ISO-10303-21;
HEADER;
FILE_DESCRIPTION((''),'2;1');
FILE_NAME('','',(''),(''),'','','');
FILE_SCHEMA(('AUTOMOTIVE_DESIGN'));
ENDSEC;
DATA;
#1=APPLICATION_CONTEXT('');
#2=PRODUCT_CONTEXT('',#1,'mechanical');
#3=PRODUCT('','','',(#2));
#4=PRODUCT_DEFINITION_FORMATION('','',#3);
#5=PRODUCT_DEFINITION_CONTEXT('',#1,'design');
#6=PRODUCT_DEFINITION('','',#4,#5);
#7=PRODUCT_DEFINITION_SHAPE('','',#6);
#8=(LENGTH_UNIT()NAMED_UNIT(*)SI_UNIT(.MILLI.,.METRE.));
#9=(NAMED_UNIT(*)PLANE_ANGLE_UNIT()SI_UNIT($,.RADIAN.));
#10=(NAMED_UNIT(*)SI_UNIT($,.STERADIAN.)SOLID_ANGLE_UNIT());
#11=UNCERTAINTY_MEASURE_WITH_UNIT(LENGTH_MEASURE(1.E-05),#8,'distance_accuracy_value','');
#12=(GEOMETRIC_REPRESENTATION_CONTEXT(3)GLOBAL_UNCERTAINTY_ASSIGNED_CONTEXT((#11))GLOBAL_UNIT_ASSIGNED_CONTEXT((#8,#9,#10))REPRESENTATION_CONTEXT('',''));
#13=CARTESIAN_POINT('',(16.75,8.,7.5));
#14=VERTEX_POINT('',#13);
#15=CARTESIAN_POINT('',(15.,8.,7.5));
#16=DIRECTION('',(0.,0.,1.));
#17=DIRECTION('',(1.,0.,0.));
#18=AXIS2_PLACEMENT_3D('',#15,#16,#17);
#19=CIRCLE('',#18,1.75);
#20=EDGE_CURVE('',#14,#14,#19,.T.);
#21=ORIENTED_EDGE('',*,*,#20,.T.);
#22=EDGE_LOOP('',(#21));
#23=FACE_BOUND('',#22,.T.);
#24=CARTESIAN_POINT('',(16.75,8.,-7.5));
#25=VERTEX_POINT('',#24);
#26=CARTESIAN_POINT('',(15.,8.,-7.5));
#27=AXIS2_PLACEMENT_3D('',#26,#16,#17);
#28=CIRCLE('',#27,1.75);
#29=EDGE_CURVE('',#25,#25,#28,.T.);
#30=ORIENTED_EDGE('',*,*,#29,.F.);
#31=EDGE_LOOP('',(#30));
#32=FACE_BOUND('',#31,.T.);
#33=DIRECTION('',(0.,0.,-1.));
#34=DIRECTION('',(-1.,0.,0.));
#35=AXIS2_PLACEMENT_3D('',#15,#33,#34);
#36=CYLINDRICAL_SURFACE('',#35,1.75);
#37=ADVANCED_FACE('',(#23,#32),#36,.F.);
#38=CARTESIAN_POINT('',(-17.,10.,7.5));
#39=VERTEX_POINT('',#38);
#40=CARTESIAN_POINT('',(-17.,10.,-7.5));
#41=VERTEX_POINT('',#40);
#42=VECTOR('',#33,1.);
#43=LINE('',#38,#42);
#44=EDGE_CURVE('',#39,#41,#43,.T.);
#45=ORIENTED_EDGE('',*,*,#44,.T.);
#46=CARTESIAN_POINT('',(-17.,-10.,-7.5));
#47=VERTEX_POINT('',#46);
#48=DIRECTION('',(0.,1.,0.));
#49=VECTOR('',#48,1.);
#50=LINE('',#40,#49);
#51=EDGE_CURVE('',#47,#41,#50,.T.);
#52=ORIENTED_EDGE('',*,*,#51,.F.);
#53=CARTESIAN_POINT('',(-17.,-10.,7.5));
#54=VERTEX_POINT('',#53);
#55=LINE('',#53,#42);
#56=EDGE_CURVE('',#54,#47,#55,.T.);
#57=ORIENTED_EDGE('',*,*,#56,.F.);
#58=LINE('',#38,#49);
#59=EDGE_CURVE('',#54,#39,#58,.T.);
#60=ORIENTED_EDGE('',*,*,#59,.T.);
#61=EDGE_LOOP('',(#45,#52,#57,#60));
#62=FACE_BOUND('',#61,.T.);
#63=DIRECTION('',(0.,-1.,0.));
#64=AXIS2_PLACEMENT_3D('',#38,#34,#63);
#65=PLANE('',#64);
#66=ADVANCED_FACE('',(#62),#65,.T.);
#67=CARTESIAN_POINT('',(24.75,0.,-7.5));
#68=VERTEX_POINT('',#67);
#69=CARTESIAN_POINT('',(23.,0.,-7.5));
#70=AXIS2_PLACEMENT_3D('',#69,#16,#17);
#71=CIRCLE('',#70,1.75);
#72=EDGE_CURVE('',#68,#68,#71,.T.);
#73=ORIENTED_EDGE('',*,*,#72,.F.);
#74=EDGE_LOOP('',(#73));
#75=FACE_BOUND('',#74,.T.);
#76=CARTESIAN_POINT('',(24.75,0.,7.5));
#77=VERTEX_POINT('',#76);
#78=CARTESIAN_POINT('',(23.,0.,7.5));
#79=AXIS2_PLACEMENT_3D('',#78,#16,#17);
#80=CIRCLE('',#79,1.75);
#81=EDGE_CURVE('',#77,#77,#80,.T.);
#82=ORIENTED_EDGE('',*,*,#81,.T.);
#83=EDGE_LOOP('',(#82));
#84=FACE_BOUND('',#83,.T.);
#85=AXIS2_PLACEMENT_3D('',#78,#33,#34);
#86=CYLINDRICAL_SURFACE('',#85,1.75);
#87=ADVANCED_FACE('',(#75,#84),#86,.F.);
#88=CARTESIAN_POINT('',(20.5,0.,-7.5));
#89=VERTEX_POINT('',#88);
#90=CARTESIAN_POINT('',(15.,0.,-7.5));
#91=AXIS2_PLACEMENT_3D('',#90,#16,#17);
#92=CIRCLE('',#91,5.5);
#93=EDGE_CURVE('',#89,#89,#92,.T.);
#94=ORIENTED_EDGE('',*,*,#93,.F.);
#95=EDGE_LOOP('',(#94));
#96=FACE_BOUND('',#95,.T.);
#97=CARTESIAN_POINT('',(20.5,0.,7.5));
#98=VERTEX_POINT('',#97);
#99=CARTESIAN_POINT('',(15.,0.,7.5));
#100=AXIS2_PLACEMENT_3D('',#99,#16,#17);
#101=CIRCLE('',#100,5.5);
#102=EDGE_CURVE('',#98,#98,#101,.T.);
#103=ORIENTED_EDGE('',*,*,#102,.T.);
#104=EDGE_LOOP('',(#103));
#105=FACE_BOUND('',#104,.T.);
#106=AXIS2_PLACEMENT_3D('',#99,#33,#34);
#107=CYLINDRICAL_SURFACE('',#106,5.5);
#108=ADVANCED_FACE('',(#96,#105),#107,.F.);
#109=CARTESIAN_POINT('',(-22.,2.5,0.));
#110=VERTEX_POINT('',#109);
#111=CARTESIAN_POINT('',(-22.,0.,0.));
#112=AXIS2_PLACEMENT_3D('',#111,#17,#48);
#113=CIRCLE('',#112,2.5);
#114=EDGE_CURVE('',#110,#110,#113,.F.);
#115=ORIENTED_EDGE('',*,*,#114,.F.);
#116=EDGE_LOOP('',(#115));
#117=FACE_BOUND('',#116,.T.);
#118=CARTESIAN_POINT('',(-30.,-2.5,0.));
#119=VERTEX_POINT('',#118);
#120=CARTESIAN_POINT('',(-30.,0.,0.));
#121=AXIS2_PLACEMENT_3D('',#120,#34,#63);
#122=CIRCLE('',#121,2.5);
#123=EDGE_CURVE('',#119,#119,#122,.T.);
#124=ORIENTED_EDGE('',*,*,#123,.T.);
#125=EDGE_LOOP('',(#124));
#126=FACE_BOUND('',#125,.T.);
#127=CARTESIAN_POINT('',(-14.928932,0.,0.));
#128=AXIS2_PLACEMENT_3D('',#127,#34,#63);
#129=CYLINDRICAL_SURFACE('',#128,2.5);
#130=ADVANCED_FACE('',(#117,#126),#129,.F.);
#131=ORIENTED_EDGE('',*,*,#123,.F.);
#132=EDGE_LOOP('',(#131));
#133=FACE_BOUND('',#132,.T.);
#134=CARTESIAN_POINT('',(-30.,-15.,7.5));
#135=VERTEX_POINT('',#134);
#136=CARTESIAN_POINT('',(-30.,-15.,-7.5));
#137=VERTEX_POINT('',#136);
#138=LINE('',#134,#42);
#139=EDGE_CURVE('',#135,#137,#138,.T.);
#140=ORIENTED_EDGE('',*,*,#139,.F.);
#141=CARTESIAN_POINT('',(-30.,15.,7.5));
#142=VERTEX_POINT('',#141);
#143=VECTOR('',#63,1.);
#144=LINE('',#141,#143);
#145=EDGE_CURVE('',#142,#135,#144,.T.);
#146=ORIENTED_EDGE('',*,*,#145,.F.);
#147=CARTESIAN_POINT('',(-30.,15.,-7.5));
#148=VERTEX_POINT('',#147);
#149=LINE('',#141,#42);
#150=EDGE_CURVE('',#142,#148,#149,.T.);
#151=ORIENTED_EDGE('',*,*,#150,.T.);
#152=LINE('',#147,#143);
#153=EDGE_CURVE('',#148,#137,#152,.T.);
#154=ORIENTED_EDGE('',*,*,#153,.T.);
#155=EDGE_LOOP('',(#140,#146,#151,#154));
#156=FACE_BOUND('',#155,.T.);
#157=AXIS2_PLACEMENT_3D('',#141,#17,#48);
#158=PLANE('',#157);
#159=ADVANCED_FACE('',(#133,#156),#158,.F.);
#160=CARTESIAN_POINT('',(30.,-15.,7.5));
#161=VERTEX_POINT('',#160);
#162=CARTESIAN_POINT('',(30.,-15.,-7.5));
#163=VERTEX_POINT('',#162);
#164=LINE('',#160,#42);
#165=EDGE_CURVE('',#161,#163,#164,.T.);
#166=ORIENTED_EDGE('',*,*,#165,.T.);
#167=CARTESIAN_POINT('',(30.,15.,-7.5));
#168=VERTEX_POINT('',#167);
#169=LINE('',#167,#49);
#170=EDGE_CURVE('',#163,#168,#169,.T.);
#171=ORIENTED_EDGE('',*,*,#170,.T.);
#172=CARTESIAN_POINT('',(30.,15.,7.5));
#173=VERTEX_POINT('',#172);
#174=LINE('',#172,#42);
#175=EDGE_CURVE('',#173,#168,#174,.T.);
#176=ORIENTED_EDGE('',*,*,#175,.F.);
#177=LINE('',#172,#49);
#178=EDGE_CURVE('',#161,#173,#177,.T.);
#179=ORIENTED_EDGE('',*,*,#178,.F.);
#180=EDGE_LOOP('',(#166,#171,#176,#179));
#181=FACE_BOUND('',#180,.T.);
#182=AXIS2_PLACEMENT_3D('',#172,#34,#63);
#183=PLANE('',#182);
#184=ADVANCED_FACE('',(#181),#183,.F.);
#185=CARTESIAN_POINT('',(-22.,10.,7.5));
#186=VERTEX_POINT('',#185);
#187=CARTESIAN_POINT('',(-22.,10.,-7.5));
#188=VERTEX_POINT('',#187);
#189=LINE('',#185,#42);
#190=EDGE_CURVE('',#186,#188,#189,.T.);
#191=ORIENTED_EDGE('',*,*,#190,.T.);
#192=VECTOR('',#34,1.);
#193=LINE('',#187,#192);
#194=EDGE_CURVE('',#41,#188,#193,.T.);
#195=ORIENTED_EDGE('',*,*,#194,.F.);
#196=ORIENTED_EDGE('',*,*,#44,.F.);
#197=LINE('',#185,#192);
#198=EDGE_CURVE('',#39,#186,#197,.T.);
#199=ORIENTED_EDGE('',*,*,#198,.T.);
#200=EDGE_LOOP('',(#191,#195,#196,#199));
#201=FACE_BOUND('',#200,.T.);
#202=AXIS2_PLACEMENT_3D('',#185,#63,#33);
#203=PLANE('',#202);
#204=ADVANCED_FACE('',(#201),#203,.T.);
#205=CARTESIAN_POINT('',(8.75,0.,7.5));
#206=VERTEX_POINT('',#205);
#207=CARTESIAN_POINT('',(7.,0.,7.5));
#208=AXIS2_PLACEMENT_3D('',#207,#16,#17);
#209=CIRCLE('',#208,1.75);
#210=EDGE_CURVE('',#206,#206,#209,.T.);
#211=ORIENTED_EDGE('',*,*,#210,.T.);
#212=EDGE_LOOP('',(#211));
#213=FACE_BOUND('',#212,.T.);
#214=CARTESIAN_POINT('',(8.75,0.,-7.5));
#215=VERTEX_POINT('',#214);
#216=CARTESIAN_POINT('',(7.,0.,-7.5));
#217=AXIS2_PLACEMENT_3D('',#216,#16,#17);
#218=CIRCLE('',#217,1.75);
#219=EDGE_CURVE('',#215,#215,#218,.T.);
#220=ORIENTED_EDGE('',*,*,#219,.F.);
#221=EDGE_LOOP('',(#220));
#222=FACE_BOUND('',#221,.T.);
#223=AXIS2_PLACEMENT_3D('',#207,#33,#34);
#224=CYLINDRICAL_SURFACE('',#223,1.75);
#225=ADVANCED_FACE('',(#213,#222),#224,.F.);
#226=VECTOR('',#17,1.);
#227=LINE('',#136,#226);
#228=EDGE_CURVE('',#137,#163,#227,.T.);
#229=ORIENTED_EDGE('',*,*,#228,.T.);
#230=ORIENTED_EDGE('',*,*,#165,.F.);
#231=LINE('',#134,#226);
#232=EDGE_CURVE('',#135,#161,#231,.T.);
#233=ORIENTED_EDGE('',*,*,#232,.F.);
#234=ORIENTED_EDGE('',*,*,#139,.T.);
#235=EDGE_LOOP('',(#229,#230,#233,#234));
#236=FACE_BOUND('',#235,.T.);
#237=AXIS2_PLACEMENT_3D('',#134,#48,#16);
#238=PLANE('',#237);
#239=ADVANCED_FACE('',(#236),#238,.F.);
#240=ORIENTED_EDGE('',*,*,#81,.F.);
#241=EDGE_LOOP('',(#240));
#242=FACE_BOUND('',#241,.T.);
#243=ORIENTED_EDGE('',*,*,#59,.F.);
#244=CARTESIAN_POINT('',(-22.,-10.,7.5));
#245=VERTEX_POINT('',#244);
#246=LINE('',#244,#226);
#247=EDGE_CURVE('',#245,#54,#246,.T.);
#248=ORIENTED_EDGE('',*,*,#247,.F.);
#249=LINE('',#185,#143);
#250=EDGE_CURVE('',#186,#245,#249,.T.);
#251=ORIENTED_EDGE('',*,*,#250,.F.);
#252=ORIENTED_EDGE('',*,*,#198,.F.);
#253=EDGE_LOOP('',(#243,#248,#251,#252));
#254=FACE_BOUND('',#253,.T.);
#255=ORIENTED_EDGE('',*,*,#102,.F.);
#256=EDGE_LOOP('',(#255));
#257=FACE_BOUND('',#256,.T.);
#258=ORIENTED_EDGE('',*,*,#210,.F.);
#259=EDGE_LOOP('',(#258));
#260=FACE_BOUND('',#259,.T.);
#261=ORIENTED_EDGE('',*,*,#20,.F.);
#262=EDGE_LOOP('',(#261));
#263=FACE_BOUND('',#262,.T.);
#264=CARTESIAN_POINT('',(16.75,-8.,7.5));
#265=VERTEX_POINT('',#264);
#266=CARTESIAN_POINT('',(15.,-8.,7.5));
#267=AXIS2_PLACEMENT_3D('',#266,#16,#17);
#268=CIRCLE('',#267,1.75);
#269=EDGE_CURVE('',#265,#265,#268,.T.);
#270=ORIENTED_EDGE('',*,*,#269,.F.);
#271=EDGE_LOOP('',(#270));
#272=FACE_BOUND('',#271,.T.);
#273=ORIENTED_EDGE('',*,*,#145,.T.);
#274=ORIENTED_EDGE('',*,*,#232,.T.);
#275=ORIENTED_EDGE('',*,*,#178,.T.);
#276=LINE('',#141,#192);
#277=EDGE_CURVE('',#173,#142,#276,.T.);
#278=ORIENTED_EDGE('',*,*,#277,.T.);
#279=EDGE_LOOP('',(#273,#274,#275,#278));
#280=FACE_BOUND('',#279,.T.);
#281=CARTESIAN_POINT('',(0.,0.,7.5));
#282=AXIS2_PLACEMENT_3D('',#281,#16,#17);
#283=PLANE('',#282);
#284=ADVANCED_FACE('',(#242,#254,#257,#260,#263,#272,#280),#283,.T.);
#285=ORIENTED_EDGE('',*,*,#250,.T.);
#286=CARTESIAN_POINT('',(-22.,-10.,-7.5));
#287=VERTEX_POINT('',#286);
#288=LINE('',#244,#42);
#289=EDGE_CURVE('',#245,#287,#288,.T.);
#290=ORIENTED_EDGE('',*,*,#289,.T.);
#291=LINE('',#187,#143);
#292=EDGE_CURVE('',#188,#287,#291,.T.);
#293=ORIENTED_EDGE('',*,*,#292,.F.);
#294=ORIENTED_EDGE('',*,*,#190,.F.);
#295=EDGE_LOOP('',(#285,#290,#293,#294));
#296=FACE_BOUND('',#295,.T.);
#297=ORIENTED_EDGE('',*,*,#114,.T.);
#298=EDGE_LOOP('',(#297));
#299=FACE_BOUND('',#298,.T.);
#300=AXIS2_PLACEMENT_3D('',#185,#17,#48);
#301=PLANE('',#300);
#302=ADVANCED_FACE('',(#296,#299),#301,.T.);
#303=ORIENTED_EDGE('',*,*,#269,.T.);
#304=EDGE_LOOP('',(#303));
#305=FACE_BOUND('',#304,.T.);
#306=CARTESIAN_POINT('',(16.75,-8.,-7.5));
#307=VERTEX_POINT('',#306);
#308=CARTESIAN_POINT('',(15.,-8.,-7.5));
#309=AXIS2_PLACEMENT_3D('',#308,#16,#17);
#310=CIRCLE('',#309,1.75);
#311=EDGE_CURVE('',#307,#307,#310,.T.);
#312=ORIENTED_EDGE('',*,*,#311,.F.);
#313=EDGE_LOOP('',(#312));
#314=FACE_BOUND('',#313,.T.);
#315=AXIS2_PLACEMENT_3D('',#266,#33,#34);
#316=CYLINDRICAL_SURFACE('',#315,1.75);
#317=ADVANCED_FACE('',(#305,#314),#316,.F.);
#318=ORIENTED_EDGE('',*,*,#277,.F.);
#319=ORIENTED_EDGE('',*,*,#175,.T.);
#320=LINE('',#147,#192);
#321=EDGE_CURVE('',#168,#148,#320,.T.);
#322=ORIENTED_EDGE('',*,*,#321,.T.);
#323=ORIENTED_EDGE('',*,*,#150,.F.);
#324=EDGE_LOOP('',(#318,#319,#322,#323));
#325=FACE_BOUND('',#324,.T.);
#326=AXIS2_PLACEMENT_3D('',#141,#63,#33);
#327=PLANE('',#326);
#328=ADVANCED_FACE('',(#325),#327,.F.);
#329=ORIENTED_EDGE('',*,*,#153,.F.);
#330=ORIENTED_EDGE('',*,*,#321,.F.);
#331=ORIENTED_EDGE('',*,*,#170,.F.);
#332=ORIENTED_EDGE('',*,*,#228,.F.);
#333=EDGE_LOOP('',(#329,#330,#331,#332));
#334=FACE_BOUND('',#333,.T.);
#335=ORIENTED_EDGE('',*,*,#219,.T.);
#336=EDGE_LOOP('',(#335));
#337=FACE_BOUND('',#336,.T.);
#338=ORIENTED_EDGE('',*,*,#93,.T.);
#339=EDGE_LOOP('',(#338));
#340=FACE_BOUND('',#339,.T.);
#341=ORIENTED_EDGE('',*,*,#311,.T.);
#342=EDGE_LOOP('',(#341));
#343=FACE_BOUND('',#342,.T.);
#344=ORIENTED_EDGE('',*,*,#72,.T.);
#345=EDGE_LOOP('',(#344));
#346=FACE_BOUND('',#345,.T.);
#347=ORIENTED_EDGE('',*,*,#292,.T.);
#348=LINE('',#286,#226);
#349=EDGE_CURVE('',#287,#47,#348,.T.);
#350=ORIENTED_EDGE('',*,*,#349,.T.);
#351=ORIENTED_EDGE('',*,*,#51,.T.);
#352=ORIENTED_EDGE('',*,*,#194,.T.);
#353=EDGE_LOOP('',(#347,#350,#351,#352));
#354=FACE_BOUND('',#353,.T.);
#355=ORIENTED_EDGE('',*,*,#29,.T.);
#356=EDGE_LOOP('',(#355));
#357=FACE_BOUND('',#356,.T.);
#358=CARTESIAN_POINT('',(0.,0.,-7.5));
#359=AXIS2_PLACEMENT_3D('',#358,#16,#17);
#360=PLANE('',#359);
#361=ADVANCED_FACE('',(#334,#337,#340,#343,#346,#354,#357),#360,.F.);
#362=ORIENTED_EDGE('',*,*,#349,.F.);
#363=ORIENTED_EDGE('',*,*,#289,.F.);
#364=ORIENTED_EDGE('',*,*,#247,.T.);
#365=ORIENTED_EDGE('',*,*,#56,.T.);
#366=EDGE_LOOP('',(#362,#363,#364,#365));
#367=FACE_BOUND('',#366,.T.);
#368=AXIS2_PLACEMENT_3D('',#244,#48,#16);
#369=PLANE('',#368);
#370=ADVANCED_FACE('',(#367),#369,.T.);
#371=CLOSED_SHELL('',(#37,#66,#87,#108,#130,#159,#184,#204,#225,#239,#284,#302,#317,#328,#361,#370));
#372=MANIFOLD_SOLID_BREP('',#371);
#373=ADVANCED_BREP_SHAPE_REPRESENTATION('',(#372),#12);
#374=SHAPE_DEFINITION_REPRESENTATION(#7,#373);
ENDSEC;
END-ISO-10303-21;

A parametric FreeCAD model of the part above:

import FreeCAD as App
import Part
import Sketcher

V = App.Vector
Q = App.Units.Quantity

doc = App.newDocument("Part")
body = doc.addObject("PartDesign::Body", "Body")

sketch1 = body.newObject("Sketcher::SketchObject", "Sketch")
sketch1.AttachmentSupport = (doc.getObject("XY_Plane"), [""])
sketch1.MapMode = "FlatFace"
sketch1.addGeometry(Part.LineSegment(V(-30, 15, 0), V(-30, -15, 0)), False)
sketch1.addGeometry(Part.LineSegment(V(-30, -15, 0), V(30, -15, 0)), False)
sketch1.addGeometry(Part.LineSegment(V(30, -15, 0), V(30, 15, 0)), False)
sketch1.addGeometry(Part.LineSegment(V(30, 15, 0), V(-30, 15, 0)), False)
sketch1.addGeometry(Part.Circle(V(15, -8, 0), V(0, 0, 1), 1.75), False)
sketch1.addGeometry(Part.LineSegment(V(-17, -10, 0), V(-22, -10, 0)), False)
sketch1.addGeometry(Part.LineSegment(V(-22, -10, 0), V(-22, 10, 0)), False)
sketch1.addGeometry(Part.LineSegment(V(-22, 10, 0), V(-17, 10, 0)), False)
sketch1.addGeometry(Part.LineSegment(V(-17, 10, 0), V(-17, -10, 0)), False)
sketch1.addGeometry(Part.Circle(V(7, 0, 0), V(0, 0, 1), 1.75), False)
sketch1.addGeometry(Part.Circle(V(15, 0, 0), V(0, 0, 1), 5.5), False)
sketch1.addGeometry(Part.Circle(V(23, 0, 0), V(0, 0, 1), 1.75), False)
sketch1.addGeometry(Part.Circle(V(15, 8, 0), V(0, 0, 1), 1.75), False)
sketch1.addConstraint(Sketcher.Constraint("Coincident", 0, 2, 1, 1))
sketch1.addConstraint(Sketcher.Constraint("Coincident", 1, 2, 2, 1))
sketch1.addConstraint(Sketcher.Constraint("Coincident", 2, 2, 3, 1))
sketch1.addConstraint(Sketcher.Constraint("Coincident", 3, 2, 0, 1))
sketch1.addConstraint(Sketcher.Constraint("Coincident", 5, 2, 6, 1))
sketch1.addConstraint(Sketcher.Constraint("Coincident", 6, 2, 7, 1))
sketch1.addConstraint(Sketcher.Constraint("Coincident", 7, 2, 8, 1))
sketch1.addConstraint(Sketcher.Constraint("Coincident", 8, 2, 5, 1))
sketch1.addConstraint(Sketcher.Constraint("Vertical", 0))
sketch1.addConstraint(Sketcher.Constraint("Horizontal", 1))
sketch1.addConstraint(Sketcher.Constraint("Vertical", 2))
sketch1.addConstraint(Sketcher.Constraint("Horizontal", 3))
sketch1.addConstraint(Sketcher.Constraint("Horizontal", 5))
sketch1.addConstraint(Sketcher.Constraint("Vertical", 6))
sketch1.addConstraint(Sketcher.Constraint("Horizontal", 7))
sketch1.addConstraint(Sketcher.Constraint("Vertical", 8))
sketch1.addConstraint(Sketcher.Constraint("Equal", 4, 9))
sketch1.addConstraint(Sketcher.Constraint("Equal", 9, 11))
sketch1.addConstraint(Sketcher.Constraint("Equal", 11, 12))
sketch1.addConstraint(Sketcher.Constraint("Symmetric", 0, 2, 2, 2, -1, 1))
sketch1.addConstraint(Sketcher.Constraint("Symmetric", 4, 3, 12, 3, -1))
sketch1.addConstraint(Sketcher.Constraint("PointOnObject", 9, 3, -1))
sketch1.addConstraint(Sketcher.Constraint("PointOnObject", 10, 3, -1))
sketch1.addConstraint(Sketcher.Constraint("PointOnObject", 11, 3, -1))
sketch1.addConstraint(Sketcher.Constraint("Vertical", 4, 3, 10, 3))
sketch1.addConstraint(Sketcher.Constraint("Diameter", 10, Q("11 mm")))
sketch1.addConstraint(Sketcher.Constraint("Diameter", 4, Q("3.5 mm")))
sketch1.addConstraint(Sketcher.Constraint("DistanceX", 1, 1, 1, 2, Q("60 mm")))
sketch1.addConstraint(Sketcher.Constraint("DistanceX", 5, 2, 5, 1, Q("5 mm")))
sketch1.addConstraint(Sketcher.Constraint("DistanceY", 0, 2, 0, 1, Q("30 mm")))
sketch1.addConstraint(Sketcher.Constraint("DistanceY", 6, 1, 6, 2, Q("20 mm")))
sketch1.addConstraint(Sketcher.Constraint("DistanceX", -1, 1, 4, 3, Q("15 mm")))
sketch1.addConstraint(Sketcher.Constraint("DistanceY", 4, 3, -1, 1, Q("8 mm")))
sketch1.addConstraint(Sketcher.Constraint("DistanceX", -1, 1, 9, 3, Q("7 mm")))
sketch1.addConstraint(Sketcher.Constraint("DistanceX", -1, 1, 11, 3, Q("23 mm")))
sketch1.addConstraint(Sketcher.Constraint("DistanceX", 5, 2, -1, 1, Q("22 mm")))
sketch1.addConstraint(Sketcher.Constraint("DistanceY", 5, 2, -1, 1, Q("10 mm")))
pad1 = body.newObject("PartDesign::Pad", "Pad")
pad1.Profile = sketch1
pad1.Length = 15
pad1.Midplane = True

sketch2 = body.newObject("Sketcher::SketchObject", "Sketch001")
sketch2.AttachmentSupport = (doc.getObject("YZ_Plane"), [""])
sketch2.MapMode = "FlatFace"
sketch2.AttachmentOffset = App.Placement(V(0, 0, -30), App.Rotation())
sketch2.addGeometry(Part.Circle(V(0, 0, 0), V(0, 0, 1), 2.5), False)
sketch2.addConstraint(Sketcher.Constraint("Coincident", 0, 3, -1, 1))
sketch2.addConstraint(Sketcher.Constraint("Diameter", 0, Q("5 mm")))
pocket1 = body.newObject("PartDesign::Pocket", "Pocket")
pocket1.Profile = sketch2
pocket1.Length = 8
pocket1.Reversed = True

doc.recompute()
